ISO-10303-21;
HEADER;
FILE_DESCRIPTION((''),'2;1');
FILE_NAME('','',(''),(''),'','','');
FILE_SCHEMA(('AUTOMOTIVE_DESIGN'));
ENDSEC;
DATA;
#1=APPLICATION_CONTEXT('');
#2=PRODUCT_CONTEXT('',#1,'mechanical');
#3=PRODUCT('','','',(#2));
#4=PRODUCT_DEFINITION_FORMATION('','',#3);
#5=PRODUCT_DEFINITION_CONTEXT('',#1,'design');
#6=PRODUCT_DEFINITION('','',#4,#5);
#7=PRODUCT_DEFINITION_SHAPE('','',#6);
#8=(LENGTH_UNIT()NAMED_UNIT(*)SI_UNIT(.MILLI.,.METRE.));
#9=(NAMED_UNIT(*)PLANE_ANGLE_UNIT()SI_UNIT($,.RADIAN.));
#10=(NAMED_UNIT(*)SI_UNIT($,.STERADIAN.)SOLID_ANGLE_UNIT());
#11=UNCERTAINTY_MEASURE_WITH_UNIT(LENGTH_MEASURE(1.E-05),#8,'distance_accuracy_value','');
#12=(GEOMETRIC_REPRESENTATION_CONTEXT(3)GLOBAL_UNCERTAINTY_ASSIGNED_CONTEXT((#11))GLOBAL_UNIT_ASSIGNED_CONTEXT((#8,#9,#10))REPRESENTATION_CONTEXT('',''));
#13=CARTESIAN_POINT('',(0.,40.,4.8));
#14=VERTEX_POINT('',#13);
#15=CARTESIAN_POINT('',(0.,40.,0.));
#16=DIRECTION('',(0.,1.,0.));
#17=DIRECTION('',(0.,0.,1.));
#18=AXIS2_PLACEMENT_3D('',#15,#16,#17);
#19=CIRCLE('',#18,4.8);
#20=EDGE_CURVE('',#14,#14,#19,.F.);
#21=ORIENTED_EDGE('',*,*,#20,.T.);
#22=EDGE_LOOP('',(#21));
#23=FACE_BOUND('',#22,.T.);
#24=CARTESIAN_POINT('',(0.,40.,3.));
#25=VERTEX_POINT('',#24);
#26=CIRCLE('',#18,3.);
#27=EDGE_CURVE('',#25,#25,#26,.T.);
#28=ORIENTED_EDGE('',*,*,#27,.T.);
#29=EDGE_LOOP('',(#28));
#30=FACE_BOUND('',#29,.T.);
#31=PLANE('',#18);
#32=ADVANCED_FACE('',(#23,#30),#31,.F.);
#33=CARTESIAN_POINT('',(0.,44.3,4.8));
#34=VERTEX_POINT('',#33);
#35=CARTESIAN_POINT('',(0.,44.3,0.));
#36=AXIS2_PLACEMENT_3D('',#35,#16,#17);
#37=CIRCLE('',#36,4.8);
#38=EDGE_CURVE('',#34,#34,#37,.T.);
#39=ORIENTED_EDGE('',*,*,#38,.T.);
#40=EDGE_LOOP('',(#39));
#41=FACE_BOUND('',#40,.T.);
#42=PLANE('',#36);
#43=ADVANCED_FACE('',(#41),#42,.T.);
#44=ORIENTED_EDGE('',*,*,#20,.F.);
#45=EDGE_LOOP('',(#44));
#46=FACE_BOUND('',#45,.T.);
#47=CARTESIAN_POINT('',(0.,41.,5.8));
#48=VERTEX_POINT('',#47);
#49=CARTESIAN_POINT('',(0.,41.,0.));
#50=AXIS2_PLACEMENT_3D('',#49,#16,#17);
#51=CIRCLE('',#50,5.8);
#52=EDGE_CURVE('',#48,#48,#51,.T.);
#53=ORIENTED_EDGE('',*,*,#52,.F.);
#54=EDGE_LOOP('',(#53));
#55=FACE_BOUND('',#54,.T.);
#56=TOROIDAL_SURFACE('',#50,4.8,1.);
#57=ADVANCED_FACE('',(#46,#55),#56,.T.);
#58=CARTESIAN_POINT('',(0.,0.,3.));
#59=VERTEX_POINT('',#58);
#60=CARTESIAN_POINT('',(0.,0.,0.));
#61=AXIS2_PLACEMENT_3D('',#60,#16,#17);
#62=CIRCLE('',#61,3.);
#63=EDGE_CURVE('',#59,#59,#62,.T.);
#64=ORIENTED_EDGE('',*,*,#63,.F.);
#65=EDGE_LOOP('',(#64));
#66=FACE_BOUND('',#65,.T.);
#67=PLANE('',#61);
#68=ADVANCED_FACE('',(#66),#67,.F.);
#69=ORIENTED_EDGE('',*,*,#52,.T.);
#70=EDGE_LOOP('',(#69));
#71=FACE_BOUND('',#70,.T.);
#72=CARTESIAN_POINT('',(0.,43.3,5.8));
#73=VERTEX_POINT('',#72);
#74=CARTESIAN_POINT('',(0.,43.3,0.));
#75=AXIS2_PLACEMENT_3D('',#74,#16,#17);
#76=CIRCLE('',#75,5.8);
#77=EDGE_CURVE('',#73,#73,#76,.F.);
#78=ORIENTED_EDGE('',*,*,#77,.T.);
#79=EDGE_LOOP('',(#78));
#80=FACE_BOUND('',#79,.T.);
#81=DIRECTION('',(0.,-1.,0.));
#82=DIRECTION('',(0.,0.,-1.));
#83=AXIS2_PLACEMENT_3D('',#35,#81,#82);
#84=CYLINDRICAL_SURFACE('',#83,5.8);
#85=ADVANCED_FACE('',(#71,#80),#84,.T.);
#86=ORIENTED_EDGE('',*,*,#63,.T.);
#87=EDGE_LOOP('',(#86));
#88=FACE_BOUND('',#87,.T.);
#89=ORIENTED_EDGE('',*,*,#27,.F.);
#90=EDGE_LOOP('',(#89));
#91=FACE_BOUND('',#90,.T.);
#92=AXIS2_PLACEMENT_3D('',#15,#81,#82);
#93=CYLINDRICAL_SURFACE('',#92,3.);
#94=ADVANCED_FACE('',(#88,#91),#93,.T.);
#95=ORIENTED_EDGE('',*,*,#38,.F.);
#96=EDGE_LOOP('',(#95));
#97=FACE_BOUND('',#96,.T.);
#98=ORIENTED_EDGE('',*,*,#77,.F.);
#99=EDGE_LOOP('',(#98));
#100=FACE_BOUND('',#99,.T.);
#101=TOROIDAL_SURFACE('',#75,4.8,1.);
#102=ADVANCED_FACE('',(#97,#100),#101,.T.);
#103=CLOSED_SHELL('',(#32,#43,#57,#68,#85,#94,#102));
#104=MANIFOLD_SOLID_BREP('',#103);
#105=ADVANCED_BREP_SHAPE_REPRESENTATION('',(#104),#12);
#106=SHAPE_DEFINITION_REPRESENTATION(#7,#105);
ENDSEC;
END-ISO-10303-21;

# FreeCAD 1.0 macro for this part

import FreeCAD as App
import Part
import Sketcher

V = App.Vector


def edges_at(feature, points):
    """Names of the edges that pass closest to the given points."""
    edges = feature.Shape.Edges
    near = lambda p: min(range(len(edges)), key=lambda i: edges[i].distToShape(Part.Vertex(*p))[0])
    return sorted({f"Edge{near(p) + 1}" for p in points})

doc = App.newDocument("Part")
body = doc.addObject("PartDesign::Body", "Body")

# Sketch on XZ plane
sketch1 = body.newObject("Sketcher::SketchObject", "Sketch")
sketch1.AttachmentSupport = (doc.getObject("XZ_Plane"), [""])
sketch1.MapMode = "FlatFace"
sketch1.addGeometry(Part.Circle(V(0, 0, 0), V(0, 0, 1), 3), False)
sketch1.addConstraint([
    Sketcher.Constraint("Coincident", 0, 3, -1, 1),
    Sketcher.Constraint("Diameter", 0, 6.0),
])
pad1 = body.newObject("PartDesign::Pad", "Pad")
pad1.Profile = sketch1
pad1.Length = 40
pad1.Reversed = True

# Sketch on XZ plane
sketch2 = body.newObject("Sketcher::SketchObject", "Sketch001")
sketch2.AttachmentSupport = (doc.getObject("XZ_Plane"), [""])
sketch2.MapMode = "FlatFace"
sketch2.AttachmentOffset = App.Placement(V(0, 0, -40), App.Rotation())
sketch2.addGeometry(Part.Circle(V(0, 0, 0), V(0, 0, 1), 6), False)
sketch2.addConstraint([
    Sketcher.Constraint("Coincident", 0, 3, -1, 1),
    Sketcher.Constraint("Diameter", 0, 11.6),
])
pad2 = body.newObject("PartDesign::Pad", "Pad001")
pad2.Profile = sketch2
pad2.Length = 4.3
pad2.Reversed = True
doc.recompute()

fillet = body.newObject("PartDesign::Fillet", "Fillet")
fillet.Base = (pad2, edges_at(pad2, [(0, 40, -5.8), (0, 44.3, -5.8)]))
fillet.Radius = 1

doc.recompute()
